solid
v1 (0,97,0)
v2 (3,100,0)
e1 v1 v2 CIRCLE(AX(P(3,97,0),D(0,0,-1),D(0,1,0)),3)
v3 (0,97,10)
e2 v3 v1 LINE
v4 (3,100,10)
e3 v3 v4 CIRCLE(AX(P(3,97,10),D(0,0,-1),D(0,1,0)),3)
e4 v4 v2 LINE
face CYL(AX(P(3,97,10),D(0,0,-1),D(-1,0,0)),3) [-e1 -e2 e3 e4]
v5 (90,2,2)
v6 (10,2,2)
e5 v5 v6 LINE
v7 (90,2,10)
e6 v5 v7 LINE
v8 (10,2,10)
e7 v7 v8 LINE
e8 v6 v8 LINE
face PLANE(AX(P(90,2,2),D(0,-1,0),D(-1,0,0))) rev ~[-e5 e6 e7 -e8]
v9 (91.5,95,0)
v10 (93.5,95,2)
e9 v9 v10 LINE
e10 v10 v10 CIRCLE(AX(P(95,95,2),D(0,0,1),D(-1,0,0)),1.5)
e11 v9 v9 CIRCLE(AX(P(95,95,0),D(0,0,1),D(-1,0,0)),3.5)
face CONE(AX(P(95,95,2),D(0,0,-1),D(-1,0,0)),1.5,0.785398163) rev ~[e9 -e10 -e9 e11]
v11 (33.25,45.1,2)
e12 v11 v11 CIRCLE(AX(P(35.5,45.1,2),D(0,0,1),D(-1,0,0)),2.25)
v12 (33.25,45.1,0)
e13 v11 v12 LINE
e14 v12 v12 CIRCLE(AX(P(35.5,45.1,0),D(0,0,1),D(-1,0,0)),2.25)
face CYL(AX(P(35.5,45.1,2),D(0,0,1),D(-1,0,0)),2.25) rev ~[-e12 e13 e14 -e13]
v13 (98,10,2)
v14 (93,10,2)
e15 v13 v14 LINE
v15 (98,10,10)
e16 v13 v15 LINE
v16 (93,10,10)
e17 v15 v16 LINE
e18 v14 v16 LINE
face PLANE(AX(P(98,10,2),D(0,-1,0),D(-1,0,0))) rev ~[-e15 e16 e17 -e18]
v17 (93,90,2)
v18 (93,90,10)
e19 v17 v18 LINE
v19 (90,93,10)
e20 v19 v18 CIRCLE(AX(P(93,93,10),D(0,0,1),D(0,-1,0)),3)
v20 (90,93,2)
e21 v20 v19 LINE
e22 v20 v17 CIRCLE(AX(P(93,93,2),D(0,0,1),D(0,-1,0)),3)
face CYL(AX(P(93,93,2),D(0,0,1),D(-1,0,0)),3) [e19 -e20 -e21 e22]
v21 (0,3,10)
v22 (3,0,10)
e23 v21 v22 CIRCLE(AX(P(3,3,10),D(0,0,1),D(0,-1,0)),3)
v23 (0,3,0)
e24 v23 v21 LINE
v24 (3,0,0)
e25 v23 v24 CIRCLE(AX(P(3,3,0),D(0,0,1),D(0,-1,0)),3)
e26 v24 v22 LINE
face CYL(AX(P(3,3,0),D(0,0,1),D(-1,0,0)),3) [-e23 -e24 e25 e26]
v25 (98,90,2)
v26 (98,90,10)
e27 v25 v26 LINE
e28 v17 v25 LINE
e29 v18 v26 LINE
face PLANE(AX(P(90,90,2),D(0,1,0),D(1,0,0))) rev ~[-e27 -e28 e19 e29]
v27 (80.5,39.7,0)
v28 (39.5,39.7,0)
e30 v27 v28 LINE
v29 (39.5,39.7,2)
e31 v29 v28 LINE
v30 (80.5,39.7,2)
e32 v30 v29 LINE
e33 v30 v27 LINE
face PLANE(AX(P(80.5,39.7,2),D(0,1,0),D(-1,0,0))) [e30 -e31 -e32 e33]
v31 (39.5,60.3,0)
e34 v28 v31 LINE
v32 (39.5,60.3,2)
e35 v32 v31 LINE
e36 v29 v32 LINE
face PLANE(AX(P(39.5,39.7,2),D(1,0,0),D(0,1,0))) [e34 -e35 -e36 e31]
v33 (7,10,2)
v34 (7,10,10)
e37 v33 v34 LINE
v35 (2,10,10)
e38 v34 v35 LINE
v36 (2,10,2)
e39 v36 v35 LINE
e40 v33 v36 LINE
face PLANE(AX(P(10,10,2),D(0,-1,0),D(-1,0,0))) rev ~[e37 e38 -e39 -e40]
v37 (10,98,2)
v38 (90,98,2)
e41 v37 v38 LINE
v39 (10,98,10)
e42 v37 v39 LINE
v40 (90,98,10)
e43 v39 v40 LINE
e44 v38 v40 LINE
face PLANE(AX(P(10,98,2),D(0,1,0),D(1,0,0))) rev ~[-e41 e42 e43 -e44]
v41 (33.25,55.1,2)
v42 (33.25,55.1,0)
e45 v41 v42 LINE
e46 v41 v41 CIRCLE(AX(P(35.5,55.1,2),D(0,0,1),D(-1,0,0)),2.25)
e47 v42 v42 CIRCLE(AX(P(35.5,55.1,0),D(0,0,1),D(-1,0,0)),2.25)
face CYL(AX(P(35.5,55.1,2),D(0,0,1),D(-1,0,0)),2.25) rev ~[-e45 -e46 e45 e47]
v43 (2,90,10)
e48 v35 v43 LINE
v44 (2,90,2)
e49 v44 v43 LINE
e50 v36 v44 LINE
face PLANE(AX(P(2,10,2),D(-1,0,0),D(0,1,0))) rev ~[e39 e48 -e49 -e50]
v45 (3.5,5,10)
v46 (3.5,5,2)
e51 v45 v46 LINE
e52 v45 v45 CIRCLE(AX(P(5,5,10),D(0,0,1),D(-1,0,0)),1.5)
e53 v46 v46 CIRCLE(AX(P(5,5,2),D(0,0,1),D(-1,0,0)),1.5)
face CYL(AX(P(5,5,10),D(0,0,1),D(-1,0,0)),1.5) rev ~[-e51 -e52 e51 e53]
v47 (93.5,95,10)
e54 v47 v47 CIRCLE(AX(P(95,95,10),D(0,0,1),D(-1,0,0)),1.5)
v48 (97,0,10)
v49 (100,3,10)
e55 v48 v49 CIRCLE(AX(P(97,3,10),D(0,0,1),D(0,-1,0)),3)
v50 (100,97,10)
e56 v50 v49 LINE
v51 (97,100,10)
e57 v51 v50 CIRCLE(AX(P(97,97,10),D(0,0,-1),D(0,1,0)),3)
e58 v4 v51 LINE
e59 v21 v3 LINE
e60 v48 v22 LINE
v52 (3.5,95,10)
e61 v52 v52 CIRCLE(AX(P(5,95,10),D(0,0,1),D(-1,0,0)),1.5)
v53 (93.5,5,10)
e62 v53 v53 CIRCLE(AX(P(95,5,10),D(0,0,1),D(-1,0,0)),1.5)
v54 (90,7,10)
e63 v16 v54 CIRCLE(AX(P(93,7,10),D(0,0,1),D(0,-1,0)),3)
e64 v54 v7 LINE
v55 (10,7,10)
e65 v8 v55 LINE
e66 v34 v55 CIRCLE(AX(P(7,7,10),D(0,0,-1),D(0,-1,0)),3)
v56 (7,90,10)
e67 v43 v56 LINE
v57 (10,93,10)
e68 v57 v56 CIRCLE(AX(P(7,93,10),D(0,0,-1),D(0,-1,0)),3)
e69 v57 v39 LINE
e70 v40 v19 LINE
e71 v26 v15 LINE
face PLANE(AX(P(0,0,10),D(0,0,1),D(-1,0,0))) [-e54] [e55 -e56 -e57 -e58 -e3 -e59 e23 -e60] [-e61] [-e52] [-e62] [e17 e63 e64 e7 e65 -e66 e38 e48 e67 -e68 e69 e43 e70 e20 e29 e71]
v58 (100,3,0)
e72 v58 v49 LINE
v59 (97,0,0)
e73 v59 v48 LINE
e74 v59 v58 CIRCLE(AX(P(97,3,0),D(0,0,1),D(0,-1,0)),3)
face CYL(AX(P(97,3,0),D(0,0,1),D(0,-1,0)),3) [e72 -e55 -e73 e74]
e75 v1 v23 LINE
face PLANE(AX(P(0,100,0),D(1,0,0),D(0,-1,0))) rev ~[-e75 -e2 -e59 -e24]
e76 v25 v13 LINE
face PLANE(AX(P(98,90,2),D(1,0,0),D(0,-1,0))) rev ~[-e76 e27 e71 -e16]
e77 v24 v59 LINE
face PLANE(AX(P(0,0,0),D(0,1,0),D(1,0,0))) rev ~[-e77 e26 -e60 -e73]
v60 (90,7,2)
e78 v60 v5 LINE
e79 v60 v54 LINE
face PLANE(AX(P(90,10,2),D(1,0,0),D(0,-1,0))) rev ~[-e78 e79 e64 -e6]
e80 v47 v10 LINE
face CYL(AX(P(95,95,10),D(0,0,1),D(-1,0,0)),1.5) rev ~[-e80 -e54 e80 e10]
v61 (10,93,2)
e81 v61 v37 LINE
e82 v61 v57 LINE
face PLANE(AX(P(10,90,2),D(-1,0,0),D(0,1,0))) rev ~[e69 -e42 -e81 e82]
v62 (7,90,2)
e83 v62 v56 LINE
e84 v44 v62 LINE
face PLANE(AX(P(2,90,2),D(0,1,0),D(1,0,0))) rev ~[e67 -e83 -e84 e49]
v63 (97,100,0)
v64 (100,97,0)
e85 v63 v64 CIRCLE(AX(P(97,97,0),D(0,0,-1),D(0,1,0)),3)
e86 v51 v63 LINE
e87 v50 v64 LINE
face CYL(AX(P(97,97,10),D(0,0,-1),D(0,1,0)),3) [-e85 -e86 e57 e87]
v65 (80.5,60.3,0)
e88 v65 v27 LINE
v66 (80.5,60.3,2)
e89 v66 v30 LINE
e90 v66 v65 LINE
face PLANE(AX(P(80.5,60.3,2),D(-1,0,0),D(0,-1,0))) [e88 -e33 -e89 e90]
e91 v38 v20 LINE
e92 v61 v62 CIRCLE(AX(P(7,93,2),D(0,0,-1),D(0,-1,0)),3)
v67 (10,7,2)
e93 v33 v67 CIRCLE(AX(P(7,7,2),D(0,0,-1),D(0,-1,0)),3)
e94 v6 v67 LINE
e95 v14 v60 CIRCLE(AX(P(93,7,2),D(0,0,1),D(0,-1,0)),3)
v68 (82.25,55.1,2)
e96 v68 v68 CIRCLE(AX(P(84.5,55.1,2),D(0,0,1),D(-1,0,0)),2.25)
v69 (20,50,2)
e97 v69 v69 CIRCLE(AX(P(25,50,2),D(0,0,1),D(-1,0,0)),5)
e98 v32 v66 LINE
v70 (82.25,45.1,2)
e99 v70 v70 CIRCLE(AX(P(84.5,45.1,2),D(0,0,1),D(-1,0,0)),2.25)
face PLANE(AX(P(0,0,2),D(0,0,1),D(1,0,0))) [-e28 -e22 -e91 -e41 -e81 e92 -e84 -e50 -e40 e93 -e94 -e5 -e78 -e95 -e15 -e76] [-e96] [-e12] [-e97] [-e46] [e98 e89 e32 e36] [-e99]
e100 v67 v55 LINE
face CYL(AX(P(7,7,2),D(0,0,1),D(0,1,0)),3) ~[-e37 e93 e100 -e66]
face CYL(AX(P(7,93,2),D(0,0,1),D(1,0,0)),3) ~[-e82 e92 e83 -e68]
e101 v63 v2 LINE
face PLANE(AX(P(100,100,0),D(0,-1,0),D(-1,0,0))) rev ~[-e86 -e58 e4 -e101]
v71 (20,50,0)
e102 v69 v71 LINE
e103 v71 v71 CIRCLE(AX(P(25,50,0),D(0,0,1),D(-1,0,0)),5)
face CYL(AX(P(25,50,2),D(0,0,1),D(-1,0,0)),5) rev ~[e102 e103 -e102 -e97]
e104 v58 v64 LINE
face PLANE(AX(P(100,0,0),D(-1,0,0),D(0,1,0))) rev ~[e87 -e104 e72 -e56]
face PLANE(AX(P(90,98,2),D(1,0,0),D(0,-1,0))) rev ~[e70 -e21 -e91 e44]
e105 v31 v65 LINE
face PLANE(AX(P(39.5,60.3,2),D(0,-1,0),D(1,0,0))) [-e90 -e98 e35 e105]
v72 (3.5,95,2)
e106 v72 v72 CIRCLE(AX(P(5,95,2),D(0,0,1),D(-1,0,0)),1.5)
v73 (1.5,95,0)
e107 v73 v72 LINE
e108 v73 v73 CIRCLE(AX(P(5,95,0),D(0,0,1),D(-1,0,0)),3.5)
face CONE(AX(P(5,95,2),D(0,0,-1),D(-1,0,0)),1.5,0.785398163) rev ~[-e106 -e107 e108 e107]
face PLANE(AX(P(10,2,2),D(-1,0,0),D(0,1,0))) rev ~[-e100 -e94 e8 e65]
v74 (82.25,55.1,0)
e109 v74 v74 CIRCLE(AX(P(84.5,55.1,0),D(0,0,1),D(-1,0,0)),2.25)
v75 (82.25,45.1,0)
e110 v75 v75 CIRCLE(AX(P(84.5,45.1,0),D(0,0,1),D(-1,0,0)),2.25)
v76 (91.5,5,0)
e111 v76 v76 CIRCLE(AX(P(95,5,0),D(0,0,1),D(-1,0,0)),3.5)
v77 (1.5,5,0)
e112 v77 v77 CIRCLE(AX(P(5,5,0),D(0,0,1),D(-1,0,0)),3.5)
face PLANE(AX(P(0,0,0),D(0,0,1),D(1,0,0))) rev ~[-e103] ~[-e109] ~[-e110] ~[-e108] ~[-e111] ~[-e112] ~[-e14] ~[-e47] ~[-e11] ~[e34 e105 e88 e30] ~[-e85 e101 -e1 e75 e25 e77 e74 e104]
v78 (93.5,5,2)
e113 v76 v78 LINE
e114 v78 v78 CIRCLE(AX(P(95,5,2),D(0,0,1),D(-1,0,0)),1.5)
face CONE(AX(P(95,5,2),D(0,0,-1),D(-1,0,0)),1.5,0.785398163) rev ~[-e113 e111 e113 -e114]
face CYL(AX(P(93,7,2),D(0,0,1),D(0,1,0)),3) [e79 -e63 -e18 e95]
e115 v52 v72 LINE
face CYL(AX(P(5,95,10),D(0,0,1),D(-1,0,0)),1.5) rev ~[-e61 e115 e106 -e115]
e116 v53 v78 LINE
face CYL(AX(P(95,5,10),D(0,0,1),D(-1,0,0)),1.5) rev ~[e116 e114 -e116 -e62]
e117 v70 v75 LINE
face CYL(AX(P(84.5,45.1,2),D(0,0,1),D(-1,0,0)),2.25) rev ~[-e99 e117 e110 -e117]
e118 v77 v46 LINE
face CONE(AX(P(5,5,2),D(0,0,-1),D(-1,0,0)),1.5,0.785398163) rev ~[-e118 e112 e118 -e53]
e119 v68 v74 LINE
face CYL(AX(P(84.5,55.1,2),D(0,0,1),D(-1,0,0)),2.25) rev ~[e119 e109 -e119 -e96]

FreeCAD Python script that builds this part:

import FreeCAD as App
import Part
import Sketcher


def edges_at(feature, points):
    """Names of the edges that pass closest to the given points."""
    edges = feature.Shape.Edges
    near = lambda p: min(range(len(edges)), key=lambda i: edges[i].distToShape(Part.Vertex(*p))[0])
    return sorted({f"Edge{near(p) + 1}" for p in points})


def add_polygon(sketch, points):
    """Adds a closed chain of lines whose ends are joined by coincident constraints."""
    first, n = sketch.GeometryCount, len(points)
    for a, b in zip(points, points[1:] + points[:1]):
        sketch.addGeometry(Part.LineSegment(App.Vector(*a, 0), App.Vector(*b, 0)), False)
    for i in range(n):
        sketch.addConstraint(Sketcher.Constraint("Coincident", first + i, 2, first + (i + 1) % n, 1))

doc = App.newDocument("Part")
params = doc.addObject("Spreadsheet::Sheet", "Params")
for row, (alias, value) in enumerate([
    ("sketch1_width", "100 mm"),
    ("pad1_length", "2 mm"),
    ("sketch2_width", "8 mm"),
    ("sketch2_width2", "100 mm"),
    ("pad2_length", "8 mm"),
    ("sketch3_diameter", "3 mm"),
    ("pocket1_length", "10 mm"),
    ("fillet_radius", "3 mm"),
    ("fillet2_radius", "3 mm"),
    ("chamfer_size", "2 mm"),
    ("sketch4_diameter", "10 mm"),
    ("sketch4_diameter2", "4.5 mm"),
    ("sketch4_width", "41 mm"),
    ("sketch4_height", "20.6 mm"),
    ("pocket2_length", "2 mm"),
], start=1):
    params.set(f"A{row}", alias)
    params.set(f"B{row}", "=" + value)
    params.setAlias(f"B{row}", alias)

body = doc.addObject("PartDesign::Body", "Body")

sketch1 = body.newObject("Sketcher::SketchObject", "Sketch")
sketch1.AttachmentSupport = (doc.getObject("XY_Plane"), [""])
sketch1.MapMode = "FlatFace"
add_polygon(sketch1, [(0, 100), (0, 0), (100, 0), (100, 100)])
sketch1.addConstraint([
    Sketcher.Constraint("Vertical", 0),
    Sketcher.Constraint("Horizontal", 1),
    Sketcher.Constraint("Vertical", 2),
    Sketcher.Constraint("Horizontal", 3),
    Sketcher.Constraint("Coincident", 0, 2, -1, 1),
    Sketcher.Constraint("Equal", 3, 0),
    Sketcher.Constraint("DistanceX", 1, 1, 1, 2, 100.0),
])
sketch1.setExpression("Constraints[10]", "Params.sketch1_width")
pad1 = body.newObject("PartDesign::Pad", "Pad")
pad1.Profile = sketch1
pad1.setExpression("Length", "Params.pad1_length")

sketch2 = body.newObject("Sketcher::SketchObject", "Sketch001")
sketch2.AttachmentSupport = (doc.getObject("XY_Plane"), [""])
sketch2.MapMode = "FlatFace"
sketch2.AttachmentOffset = App.Placement(App.Vector(0, 0, 2), App.Rotation())
add_polygon(sketch2, [(100, 100), (0, 100), (0, 0), (100, 0)])
add_polygon(sketch2, [(10, 90), (10, 98), (90, 98), (90, 90), (98, 90), (98, 10), (90, 10), (90, 2), (10, 2), (10, 10), (2, 10), (2, 90)])
sketch2.addConstraint([
    Sketcher.Constraint("Horizontal", 0),
    Sketcher.Constraint("Vertical", 1),
    Sketcher.Constraint("Horizontal", 2),
    Sketcher.Constraint("Vertical", 3),
    Sketcher.Constraint("Vertical", 4),
    Sketcher.Constraint("Horizontal", 5),
    Sketcher.Constraint("Vertical", 6),
    Sketcher.Constraint("Horizontal", 7),
    Sketcher.Constraint("Vertical", 8),
    Sketcher.Constraint("Horizontal", 9),
    Sketcher.Constraint("Vertical", 10),
    Sketcher.Constraint("Horizontal", 11),
    Sketcher.Constraint("Vertical", 12),
    Sketcher.Constraint("Horizontal", 13),
    Sketcher.Constraint("Vertical", 14),
    Sketcher.Constraint("Horizontal", 15),
    Sketcher.Constraint("Coincident", 1, 2, -1, 1),
    Sketcher.Constraint("Horizontal", 9, 2, 12, 2),
    Sketcher.Constraint("Horizontal", 7, 2, 14, 2),
    Sketcher.Constraint("Vertical", 6, 2, 9, 2),
    Sketcher.Constraint("Vertical", 4, 2, 11, 2),
    Sketcher.Constraint("Equal", 9, 13),
    Sketcher.Constraint("Equal", 2, 1),
    Sketcher.Constraint("Equal", 15, 4),
    Sketcher.Constraint("Equal", 11, 8),
    Sketcher.Constraint("Equal", 6, 10),
    Sketcher.Constraint("DistanceX", 7, 1, 7, 2, 8.0),
    Sketcher.Constraint("DistanceY", -1, 1, 10, 2, 2.0),
    Sketcher.Constraint("DistanceX", -1, 1, 13, 2, 2.0),
    Sketcher.Constraint("DistanceY", 4, 2, 0, 2, 2.0),
    Sketcher.Constraint("DistanceX", 0, 2, 0, 1, 100.0),
])
sketch2.setExpression("Constraints[42]", "Params.sketch2_width")
sketch2.setExpression("Constraints[46]", "Params.sketch2_width2")
pad2 = body.newObject("PartDesign::Pad", "Pad001")
pad2.Profile = sketch2
pad2.setExpression("Length", "Params.pad2_length")

sketch3 = body.newObject("Sketcher::SketchObject", "Sketch002")
sketch3.AttachmentSupport = (doc.getObject("XY_Plane"), [""])
sketch3.MapMode = "FlatFace"
sketch3.AttachmentOffset = App.Placement(App.Vector(0, 0, 10), App.Rotation())
sketch3.addGeometry([
    Part.Circle(App.Vector(5, 95, 0), App.Vector(0, 0, 1), 1.5),
    Part.Circle(App.Vector(95, 95, 0), App.Vector(0, 0, 1), 1.5),
    Part.Circle(App.Vector(95, 5, 0), App.Vector(0, 0, 1), 1.5),
    Part.Circle(App.Vector(5, 5, 0), App.Vector(0, 0, 1), 1.5),
], False)
sketch3.addConstraint([
    Sketcher.Constraint("Equal", 0, 1),
    Sketcher.Constraint("Equal", 1, 2),
    Sketcher.Constraint("Equal", 2, 3),
    Sketcher.Constraint("Horizontal", 0, 3, 1, 3),
    Sketcher.Constraint("Horizontal", 2, 3, 3, 3),
    Sketcher.Constraint("Vertical", 1, 3, 2, 3),
    Sketcher.Constraint("Vertical", 0, 3, 3, 3),
    Sketcher.Constraint("Diameter", 0, 3.0),
    Sketcher.Constraint("DistanceX", -1, 1, 0, 3, 5.0),
    Sketcher.Constraint("DistanceY", -1, 1, 2, 3, 5.0),
    Sketcher.Constraint("DistanceX", 0, 3, 1, 3, 90.0),
    Sketcher.Constraint("DistanceY", 2, 3, 1, 3, 90.0),
])
sketch3.setExpression("Constraints[7]", "Params.sketch3_diameter")
pocket1 = body.newObject("PartDesign::Pocket", "Pocket")
pocket1.Profile = sketch3
pocket1.setExpression("Length", "Params.pocket1_length")
doc.recompute()

fillet = body.newObject("PartDesign::Fillet", "Fillet")
fillet.Base = (pocket1, edges_at(pocket1, [
    (0, 0, 5),
    (100, 0, 5),
    (100, 100, 5),
    (0, 100, 5),
]))
fillet.setExpression("Radius", "Params.fillet_radius")
doc.recompute()

fillet2 = body.newObject("PartDesign::Fillet", "Fillet001")
fillet2.Base = (fillet, edges_at(fillet, [
    (10, 90, 6),
    (10, 10, 6),
    (90, 90, 6),
    (90, 10, 6),
]))
fillet2.setExpression("Radius", "Params.fillet2_radius")
doc.recompute()

chamfer = body.newObject("PartDesign::Chamfer", "Chamfer")
chamfer.Base = (fillet2, edges_at(fillet2, [
    (6.399, 95.542, 0),
    (6.399, 5.542, 0),
    (96.398, 5.542, 0),
    (96.398, 95.542, 0),
]))
chamfer.setExpression("Size", "Params.chamfer_size")

sketch4 = body.newObject("Sketcher::SketchObject", "Sketch003")
sketch4.AttachmentSupport = (doc.getObject("XY_Plane"), [""])
sketch4.MapMode = "FlatFace"
sketch4.AttachmentOffset = App.Placement(App.Vector(0, 0, 2), App.Rotation())
add_polygon(sketch4, [(80.5, 60.3), (39.5, 60.3), (39.5, 39.7), (80.5, 39.7)])
sketch4.addGeometry(Part.Circle(App.Vector(35.5, 55.1, 0), App.Vector(0, 0, 1), 2.2), False)
sketch4.addGeometry(Part.Circle(App.Vector(35.5, 45.1, 0), App.Vector(0, 0, 1), 2.2), False)
sketch4.addGeometry(Part.Circle(App.Vector(84.5, 55.1, 0), App.Vector(0, 0, 1), 2.2), False)
sketch4.addGeometry(Part.Circle(App.Vector(84.5, 45.1, 0), App.Vector(0, 0, 1), 2.2), False)
sketch4.addGeometry(Part.Circle(App.Vector(25, 50, 0), App.Vector(0, 0, 1), 5), False)
sketch4.addConstraint([
    Sketcher.Constraint("Horizontal", 0),
    Sketcher.Constraint("Vertical", 1),
    Sketcher.Constraint("Horizontal", 2),
    Sketcher.Constraint("Vertical", 3),
    Sketcher.Constraint("Equal", 4, 5),
    Sketcher.Constraint("Equal", 5, 6),
    Sketcher.Constraint("Equal", 6, 7),
    Sketcher.Constraint("Horizontal", 4, 3, 6, 3),
    Sketcher.Constraint("Horizontal", 5, 3, 7, 3),
    Sketcher.Constraint("Vertical", 4, 3, 5, 3),
    Sketcher.Constraint("Vertical", 6, 3, 7, 3),
    Sketcher.Constraint("Diameter", 8, 10.0),
    Sketcher.Constraint("Diameter", 4, 4.5),
    Sketcher.Constraint("DistanceX", 0, 2, 0, 1, 41.0),
    Sketcher.Constraint("DistanceY", 1, 2, 1, 1, 20.6),
    Sketcher.Constraint("DistanceX", -1, 1, 8, 3, 25.0),
    Sketcher.Constraint("DistanceY", -1, 1, 8, 3, 50.0),
    Sketcher.Constraint("DistanceY", 5, 3, 4, 3, 10.0),
    Sketcher.Constraint("DistanceX", 4, 3, 6, 3, 49.0),
    Sketcher.Constraint("DistanceX", 4, 3, 0, 2, 4.0),
    Sketcher.Constraint("DistanceX", -1, 1, 0, 2, 39.5),
    Sketcher.Constraint("DistanceY", -1, 1, 1, 2, 39.7),
    Sketcher.Constraint("DistanceY", 1, 2, 5, 3, 5.4),
])
sketch4.setExpression("Constraints[15]", "Params.sketch4_diameter")
sketch4.setExpression("Constraints[16]", "Params.sketch4_diameter2")
sketch4.setExpression("Constraints[17]", "Params.sketch4_width")
sketch4.setExpression("Constraints[18]", "Params.sketch4_height")
pocket2 = body.newObject("PartDesign::Pocket", "Pocket001")
pocket2.Profile = sketch4
pocket2.setExpression("Length", "Params.pocket2_length")

doc.recompute()
